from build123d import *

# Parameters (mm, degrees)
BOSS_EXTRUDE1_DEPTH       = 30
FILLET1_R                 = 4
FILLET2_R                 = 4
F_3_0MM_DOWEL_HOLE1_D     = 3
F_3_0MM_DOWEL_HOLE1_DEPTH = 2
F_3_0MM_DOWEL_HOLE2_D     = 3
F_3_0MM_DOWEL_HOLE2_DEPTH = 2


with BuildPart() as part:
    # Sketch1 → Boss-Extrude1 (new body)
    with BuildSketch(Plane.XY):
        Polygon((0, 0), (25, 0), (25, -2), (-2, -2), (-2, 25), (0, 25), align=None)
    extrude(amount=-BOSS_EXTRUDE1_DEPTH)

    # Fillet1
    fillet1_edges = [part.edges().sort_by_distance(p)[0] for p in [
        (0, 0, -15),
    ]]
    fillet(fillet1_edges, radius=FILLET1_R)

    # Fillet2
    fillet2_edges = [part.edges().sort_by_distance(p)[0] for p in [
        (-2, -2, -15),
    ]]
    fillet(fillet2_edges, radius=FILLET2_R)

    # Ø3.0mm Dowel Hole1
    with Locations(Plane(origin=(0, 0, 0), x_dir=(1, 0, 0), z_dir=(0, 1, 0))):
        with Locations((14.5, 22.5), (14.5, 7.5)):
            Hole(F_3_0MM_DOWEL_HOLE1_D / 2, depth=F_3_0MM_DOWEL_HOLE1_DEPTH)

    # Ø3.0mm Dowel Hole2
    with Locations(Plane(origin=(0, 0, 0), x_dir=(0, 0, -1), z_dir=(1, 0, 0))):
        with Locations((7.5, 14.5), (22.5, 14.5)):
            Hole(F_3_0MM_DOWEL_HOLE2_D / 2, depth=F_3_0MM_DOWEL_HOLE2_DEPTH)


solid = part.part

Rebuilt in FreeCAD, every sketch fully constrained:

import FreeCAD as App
import Part
import Sketcher


def edges_at(feature, points):
    """Names of the edges that pass closest to the given points."""
    edges = feature.Shape.Edges
    near = lambda p: min(range(len(edges)), key=lambda i: edges[i].distToShape(Part.Vertex(*p))[0])
    return sorted({f"Edge{near(p) + 1}" for p in points})


def add_polygon(sketch, points):
    """Adds a closed chain of lines whose ends are joined by coincident constraints."""
    first, n = sketch.GeometryCount, len(points)
    for a, b in zip(points, points[1:] + points[:1]):
        sketch.addGeometry(Part.LineSegment(App.Vector(*a, 0), App.Vector(*b, 0)), False)
    for i in range(n):
        sketch.addConstraint(Sketcher.Constraint("Coincident", first + i, 2, first + (i + 1) % n, 1))

doc = App.newDocument("Part")
body = doc.addObject("PartDesign::Body", "Body")

# Sketch on XY plane
sketch1 = body.newObject("Sketcher::SketchObject", "Sketch")
sketch1.AttachmentSupport = (doc.getObject("XY_Plane"), [""])
sketch1.MapMode = "FlatFace"
add_polygon(sketch1, [(25, 0), (0, 0), (0, 25), (-2, 25), (-2, -2), (25, -2)])  # lines 0-5
sketch1.addConstraint(Sketcher.Constraint("Horizontal", 0))
sketch1.addConstraint(Sketcher.Constraint("Vertical", 1))
sketch1.addConstraint(Sketcher.Constraint("Horizontal", 2))
sketch1.addConstraint(Sketcher.Constraint("Vertical", 3))
sketch1.addConstraint(Sketcher.Constraint("Horizontal", 4))
sketch1.addConstraint(Sketcher.Constraint("Vertical", 5))
sketch1.addConstraint(Sketcher.Constraint("Coincident", 0, 2, -1, 1))
sketch1.addConstraint(Sketcher.Constraint("Equal", 0, 1))
sketch1.addConstraint(Sketcher.Constraint("Equal", 4, 3))
sketch1.addConstraint(Sketcher.Constraint("DistanceX", 0, 2, 0, 1, 25.0))
sketch1.addConstraint(Sketcher.Constraint("DistanceX", 2, 2, 2, 1, 2.0))
pad1 = body.newObject("PartDesign::Pad", "Pad")
pad1.Profile = sketch1
pad1.Length = 30
pad1.Reversed = True
doc.recompute()

fillet = body.newObject("PartDesign::Fillet", "Fillet")
fillet.Base = (pad1, edges_at(pad1, [(0, 0, -15)]))
fillet.Radius = 4
doc.recompute()

fillet2 = body.newObject("PartDesign::Fillet", "Fillet001")
fillet2.Base = (fillet, edges_at(fillet, [(-2, -2, -15)]))
fillet2.Radius = 4

# Sketch on XZ plane
sketch2 = body.newObject("Sketcher::SketchObject", "Sketch001")
sketch2.AttachmentSupport = (doc.getObject("XZ_Plane"), [""])
sketch2.MapMode = "FlatFace"
sketch2.addGeometry(Part.Circle(App.Vector(14.5, -22.5, 0), App.Vector(0, 0, 1), 1.5), False)
sketch2.addGeometry(Part.Circle(App.Vector(14.5, -7.5, 0), App.Vector(0, 0, 1), 1.5), False)
sketch2.addConstraint(Sketcher.Constraint("Equal", 0, 1))
sketch2.addConstraint(Sketcher.Constraint("Vertical", 0, 3, 1, 3))
sketch2.addConstraint(Sketcher.Constraint("Diameter", 0, 3.0))
sketch2.addConstraint(Sketcher.Constraint("DistanceY", 0, 3, 1, 3, 15.0))
sketch2.addConstraint(Sketcher.Constraint("DistanceX", -1, 1, 0, 3, 14.5))
sketch2.addConstraint(Sketcher.Constraint("DistanceY", 0, 3, -1, 1, 22.5))
doc.recompute()
hole = body.newObject("PartDesign::Hole", "Hole")
hole.Profile = sketch2
hole.ThreadType = "None"
hole.Diameter = 3
hole.DepthType = "Dimension"
hole.Depth = 2
hole.DrillPoint = "Flat"
hole.Reversed = True

# Sketch on YZ plane
sketch3 = body.newObject("Sketcher::SketchObject", "Sketch002")
sketch3.AttachmentSupport = (doc.getObject("YZ_Plane"), [""])
sketch3.MapMode = "FlatFace"
sketch3.addGeometry(Part.Circle(App.Vector(14.5, -7.5, 0), App.Vector(0, 0, 1), 1.5), False)
sketch3.addGeometry(Part.Circle(App.Vector(14.5, -22.5, 0), App.Vector(0, 0, 1), 1.5), False)
sketch3.addConstraint(Sketcher.Constraint("Equal", 0, 1))
sketch3.addConstraint(Sketcher.Constraint("Vertical", 0, 3, 1, 3))
sketch3.addConstraint(Sketcher.Constraint("Diameter", 0, 3.0))
sketch3.addConstraint(Sketcher.Constraint("DistanceY", 1, 3, 0, 3, 15.0))
sketch3.addConstraint(Sketcher.Constraint("DistanceX", -1, 1, 0, 3, 14.5))
sketch3.addConstraint(Sketcher.Constraint("DistanceY", 0, 3, -1, 1, 7.5))
doc.recompute()
hole2 = body.newObject("PartDesign::Hole", "Hole001")
hole2.Profile = sketch3
hole2.ThreadType = "None"
hole2.Diameter = 3
hole2.DepthType = "Dimension"
hole2.Depth = 2
hole2.DrillPoint = "Flat"

doc.recompute()
